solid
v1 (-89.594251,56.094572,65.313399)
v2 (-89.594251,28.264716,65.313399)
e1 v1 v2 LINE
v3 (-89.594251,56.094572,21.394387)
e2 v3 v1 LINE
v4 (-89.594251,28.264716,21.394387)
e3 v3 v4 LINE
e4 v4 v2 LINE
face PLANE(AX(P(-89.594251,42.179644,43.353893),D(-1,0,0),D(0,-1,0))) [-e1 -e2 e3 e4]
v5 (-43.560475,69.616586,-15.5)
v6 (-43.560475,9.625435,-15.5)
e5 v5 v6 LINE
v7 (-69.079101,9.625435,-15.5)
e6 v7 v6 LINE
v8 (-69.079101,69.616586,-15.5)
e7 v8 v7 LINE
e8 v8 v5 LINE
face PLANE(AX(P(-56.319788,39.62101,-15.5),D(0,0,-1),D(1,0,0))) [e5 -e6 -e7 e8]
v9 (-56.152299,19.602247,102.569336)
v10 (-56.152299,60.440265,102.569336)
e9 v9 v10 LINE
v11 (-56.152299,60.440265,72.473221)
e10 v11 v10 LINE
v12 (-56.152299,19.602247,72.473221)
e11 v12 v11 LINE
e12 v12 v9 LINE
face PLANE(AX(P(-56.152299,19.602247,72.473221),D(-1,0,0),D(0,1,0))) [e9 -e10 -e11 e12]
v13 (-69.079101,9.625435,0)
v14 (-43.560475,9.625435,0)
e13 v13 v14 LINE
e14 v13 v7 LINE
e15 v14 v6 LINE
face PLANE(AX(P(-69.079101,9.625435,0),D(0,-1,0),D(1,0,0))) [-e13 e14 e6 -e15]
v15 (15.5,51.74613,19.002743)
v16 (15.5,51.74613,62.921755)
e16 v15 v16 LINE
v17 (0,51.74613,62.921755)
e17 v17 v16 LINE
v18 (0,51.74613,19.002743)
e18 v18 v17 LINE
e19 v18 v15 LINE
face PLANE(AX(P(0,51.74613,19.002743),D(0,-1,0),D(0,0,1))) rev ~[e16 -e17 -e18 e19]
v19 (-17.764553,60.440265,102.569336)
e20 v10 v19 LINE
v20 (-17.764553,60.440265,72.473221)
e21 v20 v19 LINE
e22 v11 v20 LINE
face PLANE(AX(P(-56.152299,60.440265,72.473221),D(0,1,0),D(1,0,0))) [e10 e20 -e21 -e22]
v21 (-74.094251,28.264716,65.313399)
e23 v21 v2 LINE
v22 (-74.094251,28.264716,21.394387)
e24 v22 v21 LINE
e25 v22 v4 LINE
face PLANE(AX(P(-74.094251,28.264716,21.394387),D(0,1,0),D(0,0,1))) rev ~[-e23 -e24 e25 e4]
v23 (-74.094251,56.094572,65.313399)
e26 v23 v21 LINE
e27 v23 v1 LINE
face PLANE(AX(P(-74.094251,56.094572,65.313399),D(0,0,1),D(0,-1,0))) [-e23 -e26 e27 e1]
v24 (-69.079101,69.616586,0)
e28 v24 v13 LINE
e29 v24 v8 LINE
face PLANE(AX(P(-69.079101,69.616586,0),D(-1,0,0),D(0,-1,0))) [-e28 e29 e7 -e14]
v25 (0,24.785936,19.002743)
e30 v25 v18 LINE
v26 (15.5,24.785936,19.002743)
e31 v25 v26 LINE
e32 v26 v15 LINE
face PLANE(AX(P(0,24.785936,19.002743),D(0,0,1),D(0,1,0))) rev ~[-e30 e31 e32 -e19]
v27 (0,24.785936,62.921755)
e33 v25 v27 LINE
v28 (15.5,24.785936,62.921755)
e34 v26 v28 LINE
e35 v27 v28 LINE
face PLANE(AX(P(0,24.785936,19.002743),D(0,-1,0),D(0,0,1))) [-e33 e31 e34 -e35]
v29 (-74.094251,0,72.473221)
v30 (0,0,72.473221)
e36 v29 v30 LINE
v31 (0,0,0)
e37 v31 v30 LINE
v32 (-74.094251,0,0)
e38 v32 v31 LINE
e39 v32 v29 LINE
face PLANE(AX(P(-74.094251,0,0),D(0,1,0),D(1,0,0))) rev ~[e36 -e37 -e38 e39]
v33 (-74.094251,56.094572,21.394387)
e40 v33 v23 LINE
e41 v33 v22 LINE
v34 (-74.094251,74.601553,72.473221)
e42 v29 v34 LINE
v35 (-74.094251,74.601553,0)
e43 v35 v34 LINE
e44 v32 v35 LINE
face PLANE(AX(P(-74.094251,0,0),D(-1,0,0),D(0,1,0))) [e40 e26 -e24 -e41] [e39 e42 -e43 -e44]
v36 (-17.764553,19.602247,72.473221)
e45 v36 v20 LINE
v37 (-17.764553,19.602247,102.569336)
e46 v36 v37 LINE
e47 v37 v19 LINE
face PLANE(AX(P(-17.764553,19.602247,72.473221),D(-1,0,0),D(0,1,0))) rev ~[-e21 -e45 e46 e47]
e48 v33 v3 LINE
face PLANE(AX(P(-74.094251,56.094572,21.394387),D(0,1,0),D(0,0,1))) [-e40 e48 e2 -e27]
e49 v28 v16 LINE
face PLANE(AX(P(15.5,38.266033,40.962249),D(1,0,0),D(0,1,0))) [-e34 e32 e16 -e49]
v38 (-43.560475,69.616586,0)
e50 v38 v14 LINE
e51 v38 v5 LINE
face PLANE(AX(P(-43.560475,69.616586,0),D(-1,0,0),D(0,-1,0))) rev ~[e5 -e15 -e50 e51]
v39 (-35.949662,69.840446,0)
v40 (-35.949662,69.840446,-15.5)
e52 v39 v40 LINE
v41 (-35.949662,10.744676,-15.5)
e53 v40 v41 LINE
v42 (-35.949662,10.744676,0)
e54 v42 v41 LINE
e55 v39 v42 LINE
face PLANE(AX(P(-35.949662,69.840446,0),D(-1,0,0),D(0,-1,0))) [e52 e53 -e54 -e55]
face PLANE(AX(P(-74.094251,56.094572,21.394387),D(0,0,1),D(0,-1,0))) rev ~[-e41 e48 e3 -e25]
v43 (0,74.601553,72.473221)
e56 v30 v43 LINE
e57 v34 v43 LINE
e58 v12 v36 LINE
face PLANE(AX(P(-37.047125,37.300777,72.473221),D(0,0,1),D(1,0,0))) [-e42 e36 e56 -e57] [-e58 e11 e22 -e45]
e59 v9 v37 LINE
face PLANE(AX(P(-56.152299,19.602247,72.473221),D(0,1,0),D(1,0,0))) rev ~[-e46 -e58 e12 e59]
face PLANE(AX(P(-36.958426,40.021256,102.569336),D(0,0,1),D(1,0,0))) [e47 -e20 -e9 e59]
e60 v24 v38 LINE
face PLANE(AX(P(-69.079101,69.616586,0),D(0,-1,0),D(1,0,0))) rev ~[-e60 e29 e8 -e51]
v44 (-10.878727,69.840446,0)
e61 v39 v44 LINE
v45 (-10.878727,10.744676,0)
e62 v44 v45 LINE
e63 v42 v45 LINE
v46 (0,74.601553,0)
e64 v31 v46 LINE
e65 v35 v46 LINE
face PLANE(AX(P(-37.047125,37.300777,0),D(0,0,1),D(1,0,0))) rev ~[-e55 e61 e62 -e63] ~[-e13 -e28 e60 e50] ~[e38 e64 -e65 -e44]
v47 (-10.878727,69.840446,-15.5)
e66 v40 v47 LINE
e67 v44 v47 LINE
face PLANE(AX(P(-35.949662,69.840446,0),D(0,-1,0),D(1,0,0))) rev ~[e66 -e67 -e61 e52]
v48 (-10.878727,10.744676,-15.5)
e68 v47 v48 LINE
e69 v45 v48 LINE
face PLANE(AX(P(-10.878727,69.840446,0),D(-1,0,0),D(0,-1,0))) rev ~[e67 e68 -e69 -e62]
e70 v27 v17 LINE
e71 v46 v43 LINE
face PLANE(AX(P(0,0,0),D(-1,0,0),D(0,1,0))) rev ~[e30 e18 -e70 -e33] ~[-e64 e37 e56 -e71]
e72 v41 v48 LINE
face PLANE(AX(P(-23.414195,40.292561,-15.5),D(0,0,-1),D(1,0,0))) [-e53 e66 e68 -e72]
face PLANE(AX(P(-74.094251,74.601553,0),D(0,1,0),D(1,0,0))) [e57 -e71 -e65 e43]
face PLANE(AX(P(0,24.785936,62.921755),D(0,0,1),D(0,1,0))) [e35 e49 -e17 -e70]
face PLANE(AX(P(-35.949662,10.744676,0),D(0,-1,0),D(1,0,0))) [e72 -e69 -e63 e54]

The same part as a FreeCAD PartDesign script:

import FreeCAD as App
import Part
import Sketcher


def add_polygon(sketch, points):
    """Adds a closed chain of lines whose ends are joined by coincident constraints."""
    first, n = sketch.GeometryCount, len(points)
    for a, b in zip(points, points[1:] + points[:1]):
        sketch.addGeometry(Part.LineSegment(App.Vector(*a, 0), App.Vector(*b, 0)), False)
    for i in range(n):
        sketch.addConstraint(Sketcher.Constraint("Coincident", first + i, 2, first + (i + 1) % n, 1))

doc = App.newDocument("Part")
body = doc.addObject("PartDesign::Body", "Body")

# Sketch on XY plane
sketch1 = body.newObject("Sketcher::SketchObject", "Sketch")
sketch1.AttachmentSupport = (doc.getObject("XY_Plane"), [""])
sketch1.MapMode = "FlatFace"
add_polygon(sketch1, [(-74.094251, 74.601553), (-74.094251, 0), (0, 0), (0, 74.601553)])  # lines 0-3
sketch1.addConstraint(Sketcher.Constraint("Vertical", 0))
sketch1.addConstraint(Sketcher.Constraint("Horizontal", 1))
sketch1.addConstraint(Sketcher.Constraint("Vertical", 2))
sketch1.addConstraint(Sketcher.Constraint("Horizontal", 3))
sketch1.addConstraint(Sketcher.Constraint("Coincident", 1, 2, -1, 1))
sketch1.addConstraint(Sketcher.Constraint("DistanceX", 1, 1, 1, 2, 74.094251))
sketch1.addConstraint(Sketcher.Constraint("DistanceY", 0, 2, 0, 1, 74.601553))
pad1 = body.newObject("PartDesign::Pad", "Pad")
pad1.Profile = sketch1
pad1.Length = 72.473221

# Sketch on XY plane
sketch2 = body.newObject("Sketcher::SketchObject", "Sketch001")
sketch2.AttachmentSupport = (doc.getObject("XY_Plane"), [""])
sketch2.MapMode = "FlatFace"
sketch2.AttachmentOffset = App.Placement(App.Vector(0, 0, 72.473221), App.Rotation())
add_polygon(sketch2, [(-56.152299, 60.440265), (-56.152299, 19.602247), (-17.764553, 19.602247), (-17.764553, 60.440265)])  # lines 0-3
sketch2.addConstraint(Sketcher.Constraint("Vertical", 0))
sketch2.addConstraint(Sketcher.Constraint("Horizontal", 1))
sketch2.addConstraint(Sketcher.Constraint("Vertical", 2))
sketch2.addConstraint(Sketcher.Constraint("Horizontal", 3))
sketch2.addConstraint(Sketcher.Constraint("DistanceY", 0, 2, 0, 1, 40.838018))
sketch2.addConstraint(Sketcher.Constraint("DistanceX", 0, 2, -1, 1, 56.152299))
sketch2.addConstraint(Sketcher.Constraint("DistanceX", 1, 1, 1, 2, 38.387746))
sketch2.addConstraint(Sketcher.Constraint("DistanceY", -1, 1, 0, 2, 19.602247))
pad2 = body.newObject("PartDesign::Pad", "Pad001")
pad2.Profile = sketch2
pad2.Length = 30.096116

# Sketch on YZ plane
sketch3 = body.newObject("Sketcher::SketchObject", "Sketch002")
sketch3.AttachmentSupport = (doc.getObject("YZ_Plane"), [""])
sketch3.MapMode = "FlatFace"
add_polygon(sketch3, [(24.785936, 62.921755), (24.785936, 19.002743), (51.74613, 19.002743), (51.74613, 62.921755)])  # lines 0-3
sketch3.addConstraint(Sketcher.Constraint("Vertical", 0))
sketch3.addConstraint(Sketcher.Constraint("Horizontal", 1))
sketch3.addConstraint(Sketcher.Constraint("Vertical", 2))
sketch3.addConstraint(Sketcher.Constraint("Horizontal", 3))
sketch3.addConstraint(Sketcher.Constraint("DistanceY", 0, 2, 0, 1, 43.919012))
sketch3.addConstraint(Sketcher.Constraint("DistanceX", 1, 1, 1, 2, 26.960194))
sketch3.addConstraint(Sketcher.Constraint("DistanceX", -1, 1, 1, 2, 51.74613))
sketch3.addConstraint(Sketcher.Constraint("DistanceY", -1, 1, 0, 2, 19.002743))
pad3 = body.newObject("PartDesign::Pad", "Pad002")
pad3.Profile = sketch3
pad3.Length = 15.5

# Sketch on YZ plane
sketch4 = body.newObject("Sketcher::SketchObject", "Sketch003")
sketch4.AttachmentSupport = (doc.getObject("YZ_Plane"), [""])
sketch4.MapMode = "FlatFace"
sketch4.AttachmentOffset = App.Placement(App.Vector(0, 0, -74.094251), App.Rotation())
add_polygon(sketch4, [(56.094572, 65.313399), (56.094572, 21.394387), (28.264716, 21.394387), (28.264716, 65.313399)])  # lines 0-3
sketch4.addConstraint(Sketcher.Constraint("Vertical", 0))
sketch4.addConstraint(Sketcher.Constraint("Horizontal", 1))
sketch4.addConstraint(Sketcher.Constraint("Vertical", 2))
sketch4.addConstraint(Sketcher.Constraint("Horizontal", 3))
sketch4.addConstraint(Sketcher.Constraint("DistanceY", 0, 2, 0, 1, 43.919012))
sketch4.addConstraint(Sketcher.Constraint("DistanceY", -1, 1, 2, 2, 65.313399))
sketch4.addConstraint(Sketcher.Constraint("DistanceX", 1, 2, 1, 1, 27.829856))
sketch4.addConstraint(Sketcher.Constraint("DistanceX", -1, 1, 0, 2, 56.094572))
pad4 = body.newObject("PartDesign::Pad", "Pad003")
pad4.Profile = sketch4
pad4.Length = 15.5
pad4.Reversed = True

# Sketch on XY plane
sketch5 = body.newObject("Sketcher::SketchObject", "Sketch004")
sketch5.AttachmentSupport = (doc.getObject("XY_Plane"), [""])
sketch5.MapMode = "FlatFace"
add_polygon(sketch5, [(-69.079101, 9.625435), (-69.079101, 69.616586), (-43.560475, 69.616586), (-43.560475, 9.625435)])  # lines 0-3
sketch5.addConstraint(Sketcher.Constraint("Vertical", 0))
sketch5.addConstraint(Sketcher.Constraint("Horizontal", 1))
sketch5.addConstraint(Sketcher.Constraint("Vertical", 2))
sketch5.addConstraint(Sketcher.Constraint("Horizontal", 3))
sketch5.addConstraint(Sketcher.Constraint("DistanceY", 0, 1, 0, 2, 59.991151))
sketch5.addConstraint(Sketcher.Constraint("DistanceX", 0, 2, -1, 1, 69.079101))
sketch5.addConstraint(Sketcher.Constraint("DistanceX", 1, 1, 1, 2, 25.518626))
sketch5.addConstraint(Sketcher.Constraint("DistanceY", -1, 1, 0, 2, 69.616586))
pad5 = body.newObject("PartDesign::Pad", "Pad004")
pad5.Profile = sketch5
pad5.Length = 15.5
pad5.Reversed = True

# Sketch on XY plane
sketch6 = body.newObject("Sketcher::SketchObject", "Sketch005")
sketch6.AttachmentSupport = (doc.getObject("XY_Plane"), [""])
sketch6.MapMode = "FlatFace"
add_polygon(sketch6, [(-35.949662, 10.744676), (-35.949662, 69.840446), (-10.878727, 69.840446), (-10.878727, 10.744676)])  # lines 0-3
sketch6.addConstraint(Sketcher.Constraint("Vertical", 0))
sketch6.addConstraint(Sketcher.Constraint("Horizontal", 1))
sketch6.addConstraint(Sketcher.Constraint("Vertical", 2))
sketch6.addConstraint(Sketcher.Constraint("Horizontal", 3))
sketch6.addConstraint(Sketcher.Constraint("DistanceY", 0, 1, 0, 2, 59.09577))
sketch6.addConstraint(Sketcher.Constraint("DistanceX", 1, 1, 1, 2, 25.070935))
sketch6.addConstraint(Sketcher.Constraint("DistanceX", 0, 2, -1, 1, 35.949662))
sketch6.addConstraint(Sketcher.Constraint("DistanceY", -1, 1, 0, 2, 69.840446))
pad6 = body.newObject("PartDesign::Pad", "Pad005")
pad6.Profile = sketch6
pad6.Length = 15.5
pad6.Reversed = True

doc.recompute()
